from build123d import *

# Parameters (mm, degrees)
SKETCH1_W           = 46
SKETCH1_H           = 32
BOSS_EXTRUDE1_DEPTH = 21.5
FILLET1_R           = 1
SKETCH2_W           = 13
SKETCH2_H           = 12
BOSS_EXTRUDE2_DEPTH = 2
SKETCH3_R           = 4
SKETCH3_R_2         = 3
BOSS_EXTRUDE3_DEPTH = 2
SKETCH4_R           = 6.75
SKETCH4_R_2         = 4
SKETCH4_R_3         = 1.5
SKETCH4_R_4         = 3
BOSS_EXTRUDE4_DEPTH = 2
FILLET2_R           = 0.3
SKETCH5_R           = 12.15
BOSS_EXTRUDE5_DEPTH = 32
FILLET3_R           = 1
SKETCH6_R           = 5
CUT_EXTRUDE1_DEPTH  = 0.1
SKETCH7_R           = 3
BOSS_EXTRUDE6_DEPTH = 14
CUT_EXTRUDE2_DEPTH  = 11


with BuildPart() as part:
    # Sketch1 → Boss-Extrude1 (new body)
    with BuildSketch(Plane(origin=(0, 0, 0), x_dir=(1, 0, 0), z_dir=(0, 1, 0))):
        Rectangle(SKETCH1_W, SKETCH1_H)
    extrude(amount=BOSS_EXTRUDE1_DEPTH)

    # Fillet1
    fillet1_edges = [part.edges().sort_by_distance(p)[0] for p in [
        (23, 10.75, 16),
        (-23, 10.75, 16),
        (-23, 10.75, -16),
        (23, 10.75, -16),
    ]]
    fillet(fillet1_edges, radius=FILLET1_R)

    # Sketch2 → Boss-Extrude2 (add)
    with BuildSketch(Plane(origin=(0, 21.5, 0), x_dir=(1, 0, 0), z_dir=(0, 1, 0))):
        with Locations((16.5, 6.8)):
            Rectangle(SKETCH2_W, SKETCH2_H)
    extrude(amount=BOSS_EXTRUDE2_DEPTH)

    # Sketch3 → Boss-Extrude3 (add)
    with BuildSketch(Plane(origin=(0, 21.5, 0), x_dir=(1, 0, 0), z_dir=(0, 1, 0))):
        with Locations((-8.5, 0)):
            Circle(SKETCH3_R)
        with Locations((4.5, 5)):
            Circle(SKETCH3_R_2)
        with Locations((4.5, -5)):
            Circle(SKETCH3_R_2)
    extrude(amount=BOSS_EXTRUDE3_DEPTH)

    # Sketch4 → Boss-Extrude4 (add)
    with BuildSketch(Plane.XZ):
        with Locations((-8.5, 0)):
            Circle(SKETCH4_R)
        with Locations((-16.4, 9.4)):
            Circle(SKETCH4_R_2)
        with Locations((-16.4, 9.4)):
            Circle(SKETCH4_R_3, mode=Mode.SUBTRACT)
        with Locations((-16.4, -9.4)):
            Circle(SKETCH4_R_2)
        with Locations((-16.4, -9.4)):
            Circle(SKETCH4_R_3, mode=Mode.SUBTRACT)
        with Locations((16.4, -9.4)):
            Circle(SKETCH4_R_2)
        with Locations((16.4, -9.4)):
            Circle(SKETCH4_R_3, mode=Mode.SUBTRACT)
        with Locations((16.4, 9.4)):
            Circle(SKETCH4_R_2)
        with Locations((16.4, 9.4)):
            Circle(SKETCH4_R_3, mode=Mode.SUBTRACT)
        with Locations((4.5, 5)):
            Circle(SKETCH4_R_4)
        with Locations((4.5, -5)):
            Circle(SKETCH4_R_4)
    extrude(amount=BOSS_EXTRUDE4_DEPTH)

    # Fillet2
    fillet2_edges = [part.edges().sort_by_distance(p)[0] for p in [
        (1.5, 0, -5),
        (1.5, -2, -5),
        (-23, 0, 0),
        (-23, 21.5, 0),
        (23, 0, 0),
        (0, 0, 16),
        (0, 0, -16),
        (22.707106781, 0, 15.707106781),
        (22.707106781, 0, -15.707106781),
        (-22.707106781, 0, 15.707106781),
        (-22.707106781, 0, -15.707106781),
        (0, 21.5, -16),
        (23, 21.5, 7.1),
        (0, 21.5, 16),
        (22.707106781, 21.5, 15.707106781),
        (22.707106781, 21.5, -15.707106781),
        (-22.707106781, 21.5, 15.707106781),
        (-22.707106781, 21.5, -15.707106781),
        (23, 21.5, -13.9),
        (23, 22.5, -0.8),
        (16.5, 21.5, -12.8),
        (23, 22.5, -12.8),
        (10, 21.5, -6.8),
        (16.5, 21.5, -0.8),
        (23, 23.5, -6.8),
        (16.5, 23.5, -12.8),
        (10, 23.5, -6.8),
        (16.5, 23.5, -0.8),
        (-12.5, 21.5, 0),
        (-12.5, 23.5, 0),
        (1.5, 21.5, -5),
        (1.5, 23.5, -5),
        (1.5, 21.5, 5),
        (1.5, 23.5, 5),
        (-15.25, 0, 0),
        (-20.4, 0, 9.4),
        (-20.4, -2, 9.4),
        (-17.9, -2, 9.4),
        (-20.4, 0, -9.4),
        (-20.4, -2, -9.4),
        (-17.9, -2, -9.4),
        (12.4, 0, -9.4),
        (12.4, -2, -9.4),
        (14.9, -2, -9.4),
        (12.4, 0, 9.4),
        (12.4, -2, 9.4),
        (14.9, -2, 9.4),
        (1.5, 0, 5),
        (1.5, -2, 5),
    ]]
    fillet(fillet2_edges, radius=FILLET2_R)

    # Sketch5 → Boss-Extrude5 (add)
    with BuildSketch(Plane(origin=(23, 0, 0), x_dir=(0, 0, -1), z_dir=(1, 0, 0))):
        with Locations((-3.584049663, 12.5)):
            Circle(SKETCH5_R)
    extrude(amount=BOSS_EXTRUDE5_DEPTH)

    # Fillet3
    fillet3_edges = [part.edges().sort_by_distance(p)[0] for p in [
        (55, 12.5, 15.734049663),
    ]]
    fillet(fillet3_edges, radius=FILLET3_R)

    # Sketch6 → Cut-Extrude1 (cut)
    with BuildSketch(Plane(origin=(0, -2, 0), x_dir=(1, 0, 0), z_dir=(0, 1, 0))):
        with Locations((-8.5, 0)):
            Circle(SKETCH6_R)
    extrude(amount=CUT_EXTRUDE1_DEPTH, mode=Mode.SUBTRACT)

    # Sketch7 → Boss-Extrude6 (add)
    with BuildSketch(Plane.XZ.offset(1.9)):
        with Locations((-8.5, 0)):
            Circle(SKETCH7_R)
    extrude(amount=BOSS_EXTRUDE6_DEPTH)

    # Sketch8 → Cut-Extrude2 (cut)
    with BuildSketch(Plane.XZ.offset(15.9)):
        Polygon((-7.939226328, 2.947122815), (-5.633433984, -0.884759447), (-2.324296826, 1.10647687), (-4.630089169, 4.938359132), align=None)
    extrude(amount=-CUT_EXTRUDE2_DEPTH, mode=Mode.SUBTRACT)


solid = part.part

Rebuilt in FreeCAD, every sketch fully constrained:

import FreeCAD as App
import Part
import Sketcher
from FreeCAD import Vector


def edges_at(feature, points):
    """Names of the edges that pass closest to the given points."""
    edges = feature.Shape.Edges
    near = lambda p: min(range(len(edges)), key=lambda i: edges[i].distToShape(Part.Vertex(*p))[0])
    return sorted({f"Edge{near(p) + 1}" for p in points})

doc = App.newDocument("Part")
params = doc.addObject("Spreadsheet::Sheet", "Params")
for row, (alias, value) in enumerate([
    ("sketch1_width", "46 mm"),
    ("sketch1_height", "32 mm"),
    ("pad1_length", "21.5 mm"),
    ("fillet_radius", "1 mm"),
    ("sketch2_width", "13 mm"),
    ("sketch2_height", "12 mm"),
    ("pad2_length", "2 mm"),
    ("sketch3_diameter", "8 mm"),
    ("sketch3_diameter2", "6 mm"),
    ("pad3_length", "2 mm"),
    ("sketch4_diameter", "8 mm"),
    ("sketch4_diameter2", "3 mm"),
    ("sketch4_diameter3", "6 mm"),
    ("sketch4_diameter4", "13.5 mm"),
    ("pad4_length", "2 mm"),
    ("fillet2_radius", "0.3 mm"),
    ("sketch5_diameter", "24.3 mm"),
    ("pad5_length", "32 mm"),
    ("fillet3_radius", "1 mm"),
    ("sketch6_diameter", "10 mm"),
    ("pocket1_length", "0.1 mm"),
    ("sketch7_diameter", "6 mm"),
    ("pad6_length", "14 mm"),
    ("pocket2_length", "11 mm"),
], start=1):
    params.set(f"A{row}", alias)
    params.set(f"B{row}", "=" + value)
    params.setAlias(f"B{row}", alias)

body = doc.addObject("PartDesign::Body", "Body")

sketch1 = body.newObject("Sketcher::SketchObject", "Sketch")
sketch1.AttachmentSupport = (doc.getObject("XZ_Plane"), [""])
sketch1.MapMode = "FlatFace"
sketch1.addGeometry([
    Part.LineSegment(Vector(-23, -16, 0), Vector(-23, 16, 0)),
    Part.LineSegment(Vector(-23, 16, 0), Vector(23, 16, 0)),
    Part.LineSegment(Vector(23, 16, 0), Vector(23, -16, 0)),
    Part.LineSegment(Vector(23, -16, 0), Vector(-23, -16, 0)),
], False)
sketch1.addConstraint([
    Sketcher.Constraint("Coincident", 0, 2, 1, 1),
    Sketcher.Constraint("Coincident", 1, 2, 2, 1),
    Sketcher.Constraint("Coincident", 2, 2, 3, 1),
    Sketcher.Constraint("Coincident", 3, 2, 0, 1),
    Sketcher.Constraint("Vertical", 0),
    Sketcher.Constraint("Horizontal", 1),
    Sketcher.Constraint("Vertical", 2),
    Sketcher.Constraint("Horizontal", 3),
    Sketcher.Constraint("Symmetric", 0, 2, 2, 2, -1, 1),
    Sketcher.Constraint("DistanceX", 1, 1, 1, 2, 46.0),
    Sketcher.Constraint("DistanceY", 0, 1, 0, 2, 32.0),
])
sketch1.setExpression("Constraints[9]", "Params.sketch1_width")
sketch1.setExpression("Constraints[10]", "Params.sketch1_height")
pad1 = body.newObject("PartDesign::Pad", "Pad")
pad1.Profile = sketch1
pad1.setExpression("Length", "Params.pad1_length")
pad1.Reversed = True
doc.recompute()

fillet = body.newObject("PartDesign::Fillet", "Fillet")
fillet.Base = (pad1, edges_at(pad1, [
    (23, 10.75, 16),
    (-23, 10.75, 16),
    (-23, 10.75, -16),
    (23, 10.75, -16),
]))
fillet.setExpression("Radius", "Params.fillet_radius")

sketch2 = body.newObject("Sketcher::SketchObject", "Sketch001")
sketch2.AttachmentSupport = (doc.getObject("XZ_Plane"), [""])
sketch2.MapMode = "FlatFace"
sketch2.AttachmentOffset = App.Placement(Vector(0, 0, -21.5), App.Rotation())
sketch2.addGeometry([
    Part.LineSegment(Vector(10, -12.8, 0), Vector(10, -0.8, 0)),
    Part.LineSegment(Vector(10, -0.8, 0), Vector(23, -0.8, 0)),
    Part.LineSegment(Vector(23, -0.8, 0), Vector(23, -12.8, 0)),
    Part.LineSegment(Vector(23, -12.8, 0), Vector(10, -12.8, 0)),
], False)
sketch2.addConstraint([
    Sketcher.Constraint("Coincident", 0, 2, 1, 1),
    Sketcher.Constraint("Coincident", 1, 2, 2, 1),
    Sketcher.Constraint("Coincident", 2, 2, 3, 1),
    Sketcher.Constraint("Coincident", 3, 2, 0, 1),
    Sketcher.Constraint("Vertical", 0),
    Sketcher.Constraint("Horizontal", 1),
    Sketcher.Constraint("Vertical", 2),
    Sketcher.Constraint("Horizontal", 3),
    Sketcher.Constraint("DistanceX", 1, 1, 1, 2, 13.0),
    Sketcher.Constraint("DistanceY", 0, 1, 0, 2, 12.0),
    Sketcher.Constraint("DistanceX", -1, 1, 0, 2, 10.0),
    Sketcher.Constraint("DistanceY", 0, 2, -1, 1, 0.8),
])
sketch2.setExpression("Constraints[8]", "Params.sketch2_width")
sketch2.setExpression("Constraints[9]", "Params.sketch2_height")
pad2 = body.newObject("PartDesign::Pad", "Pad001")
pad2.Profile = sketch2
pad2.setExpression("Length", "Params.pad2_length")
pad2.Reversed = True

sketch3 = body.newObject("Sketcher::SketchObject", "Sketch002")
sketch3.AttachmentSupport = (doc.getObject("XZ_Plane"), [""])
sketch3.MapMode = "FlatFace"
sketch3.AttachmentOffset = App.Placement(Vector(0, 0, -21.5), App.Rotation())
sketch3.addGeometry([
    Part.Circle(Vector(-8.5, 0, 0), Vector(0, 0, 1), 4),
    Part.Circle(Vector(4.5, -5, 0), Vector(0, 0, 1), 3),
    Part.Circle(Vector(4.5, 5, 0), Vector(0, 0, 1), 3),
], False)
sketch3.addConstraint([
    Sketcher.Constraint("Equal", 1, 2),
    Sketcher.Constraint("Symmetric", 1, 3, 2, 3, -1),
    Sketcher.Constraint("PointOnObject", 0, 3, -1),
    Sketcher.Constraint("Diameter", 0, 8.0),
    Sketcher.Constraint("Diameter", 1, 6.0),
    Sketcher.Constraint("DistanceY", 1, 3, -1, 1, 5.0),
    Sketcher.Constraint("DistanceX", 0, 3, 1, 3, 13.0),
    Sketcher.Constraint("DistanceX", 0, 3, -1, 1, 8.5),
])
sketch3.setExpression("Constraints[3]", "Params.sketch3_diameter")
sketch3.setExpression("Constraints[4]", "Params.sketch3_diameter2")
pad3 = body.newObject("PartDesign::Pad", "Pad002")
pad3.Profile = sketch3
pad3.setExpression("Length", "Params.pad3_length")
pad3.Reversed = True

sketch4 = body.newObject("Sketcher::SketchObject", "Sketch003")
sketch4.AttachmentSupport = (doc.getObject("XZ_Plane"), [""])
sketch4.MapMode = "FlatFace"
sketch4.addGeometry([
    Part.Circle(Vector(-8.5, 0, 0), Vector(0, 0, 1), 6.75),
    Part.Circle(Vector(-16.4, 9.4, 0), Vector(0, 0, 1), 4),
    Part.Circle(Vector(-16.4, 9.4, 0), Vector(0, 0, 1), 1.5),
    Part.Circle(Vector(-16.4, -9.4, 0), Vector(0, 0, 1), 4),
    Part.Circle(Vector(-16.4, -9.4, 0), Vector(0, 0, 1), 1.5),
    Part.Circle(Vector(16.4, -9.4, 0), Vector(0, 0, 1), 4),
    Part.Circle(Vector(16.4, -9.4, 0), Vector(0, 0, 1), 1.5),
    Part.Circle(Vector(16.4, 9.4, 0), Vector(0, 0, 1), 4),
    Part.Circle(Vector(16.4, 9.4, 0), Vector(0, 0, 1), 1.5),
    Part.Circle(Vector(4.5, 5, 0), Vector(0, 0, 1), 3),
    Part.Circle(Vector(4.5, -5, 0), Vector(0, 0, 1), 3),
], False)
sketch4.addConstraint([
    Sketcher.Constraint("Coincident", 2, 3, 1, 3),
    Sketcher.Constraint("Coincident", 4, 3, 3, 3),
    Sketcher.Constraint("Coincident", 6, 3, 5, 3),
    Sketcher.Constraint("Coincident", 8, 3, 7, 3),
    Sketcher.Constraint("Equal", 1, 3),
    Sketcher.Constraint("Equal", 2, 4),
    Sketcher.Constraint("Equal", 3, 5),
    Sketcher.Constraint("Equal", 4, 6),
    Sketcher.Constraint("Equal", 5, 7),
    Sketcher.Constraint("Equal", 6, 8),
    Sketcher.Constraint("Equal", 9, 10),
    Sketcher.Constraint("Symmetric", 1, 3, 5, 3, -1, 1),
    Sketcher.Constraint("Symmetric", 3, 3, 7, 3, -1, 1),
    Sketcher.Constraint("Symmetric", 3, 3, 5, 3, -2),
    Sketcher.Constraint("Symmetric", 9, 3, 10, 3, -1),
    Sketcher.Constraint("PointOnObject", 0, 3, -1),
    Sketcher.Constraint("Diameter", 1, 8.0),
    Sketcher.Constraint("Diameter", 2, 3.0),
    Sketcher.Constraint("Diameter", 9, 6.0),
    Sketcher.Constraint("Diameter", 0, 13.5),
    Sketcher.Constraint("DistanceY", -1, 1, 9, 3, 5.0),
    Sketcher.Constraint("DistanceX", 0, 3, 9, 3, 13.0),
    Sketcher.Constraint("DistanceX", 0, 3, -1, 1, 8.5),
    Sketcher.Constraint("DistanceX", 1, 3, -1, 1, 16.4),
    Sketcher.Constraint("DistanceY", -1, 1, 1, 3, 9.4),
])
sketch4.setExpression("Constraints[16]", "Params.sketch4_diameter")
sketch4.setExpression("Constraints[17]", "Params.sketch4_diameter2")
sketch4.setExpression("Constraints[18]", "Params.sketch4_diameter3")
sketch4.setExpression("Constraints[19]", "Params.sketch4_diameter4")
pad4 = body.newObject("PartDesign::Pad", "Pad003")
pad4.Profile = sketch4
pad4.setExpression("Length", "Params.pad4_length")
doc.recompute()

fillet2 = body.newObject("PartDesign::Fillet", "Fillet001")
fillet2.Base = (pad4, edges_at(pad4, [
    (1.5, 0, -5),
    (1.5, -2, -5),
    (-23, 0, 0),
    (-23, 21.5, 0),
    (23, 0, 0),
    (0, 0, 16),
    (0, 0, -16),
    (22.707, 0, 15.707),
    (22.707, 0, -15.707),
    (-22.707, 0, 15.707),
    (-22.707, 0, -15.707),
    (0, 21.5, -16),
    (23, 21.5, 7.1),
    (0, 21.5, 16),
    (22.707, 21.5, 15.707),
    (22.707, 21.5, -15.707),
    (-22.707, 21.5, 15.707),
    (-22.707, 21.5, -15.707),
    (23, 21.5, -13.9),
    (23, 22.5, -0.8),
    (16.5, 21.5, -12.8),
    (23, 22.5, -12.8),
    (10, 21.5, -6.8),
    (16.5, 21.5, -0.8),
    (23, 23.5, -6.8),
    (16.5, 23.5, -12.8),
    (10, 23.5, -6.8),
    (16.5, 23.5, -0.8),
    (-12.5, 21.5, 0),
    (-12.5, 23.5, 0),
    (1.5, 21.5, -5),
    (1.5, 23.5, -5),
    (1.5, 21.5, 5),
    (1.5, 23.5, 5),
    (-15.25, 0, 0),
    (-20.4, 0, 9.4),
    (-20.4, -2, 9.4),
    (-17.9, -2, 9.4),
    (-20.4, 0, -9.4),
    (-20.4, -2, -9.4),
    (-17.9, -2, -9.4),
    (12.4, 0, -9.4),
    (12.4, -2, -9.4),
    (14.9, -2, -9.4),
    (12.4, 0, 9.4),
    (12.4, -2, 9.4),
    (14.9, -2, 9.4),
    (1.5, 0, 5),
    (1.5, -2, 5),
]))
fillet2.setExpression("Radius", "Params.fillet2_radius")

sketch5 = body.newObject("Sketcher::SketchObject", "Sketch004")
sketch5.AttachmentSupport = (doc.getObject("YZ_Plane"), [""])
sketch5.MapMode = "FlatFace"
sketch5.AttachmentOffset = App.Placement(Vector(0, 0, 23), App.Rotation())
sketch5.addGeometry(Part.Circle(Vector(12.5, 3.58405, 0), Vector(0, 0, 1), 12.15), False)
sketch5.addConstraint([
    Sketcher.Constraint("Diameter", 0, 24.3),
    Sketcher.Constraint("DistanceX", -1, 1, 0, 3, 12.5),
    Sketcher.Constraint("DistanceY", -1, 1, 0, 3, 3.58405),
])
sketch5.setExpression("Constraints[0]", "Params.sketch5_diameter")
pad5 = body.newObject("PartDesign::Pad", "Pad004")
pad5.Profile = sketch5
pad5.setExpression("Length", "Params.pad5_length")
doc.recompute()

fillet3 = body.newObject("PartDesign::Fillet", "Fillet002")
fillet3.Base = (pad5, edges_at(pad5, [(55, 12.5, 15.734)]))
fillet3.setExpression("Radius", "Params.fillet3_radius")

sketch6 = body.newObject("Sketcher::SketchObject", "Sketch005")
sketch6.AttachmentSupport = (doc.getObject("XZ_Plane"), [""])
sketch6.MapMode = "FlatFace"
sketch6.AttachmentOffset = App.Placement(Vector(0, 0, 2), App.Rotation())
sketch6.addGeometry(Part.Circle(Vector(-8.5, 0, 0), Vector(0, 0, 1), 5), False)
sketch6.addConstraint([
    Sketcher.Constraint("PointOnObject", 0, 3, -1),
    Sketcher.Constraint("Diameter", 0, 10.0),
    Sketcher.Constraint("DistanceX", 0, 3, -1, 1, 8.5),
])
sketch6.setExpression("Constraints[1]", "Params.sketch6_diameter")
pocket1 = body.newObject("PartDesign::Pocket", "Pocket")
pocket1.Profile = sketch6
pocket1.setExpression("Length", "Params.pocket1_length")

sketch7 = body.newObject("Sketcher::SketchObject", "Sketch006")
sketch7.AttachmentSupport = (doc.getObject("XZ_Plane"), [""])
sketch7.MapMode = "FlatFace"
sketch7.AttachmentOffset = App.Placement(Vector(0, 0, 1.9), App.Rotation())
sketch7.addGeometry(Part.Circle(Vector(-8.5, 0, 0), Vector(0, 0, 1), 3), False)
sketch7.addConstraint([
    Sketcher.Constraint("PointOnObject", 0, 3, -1),
    Sketcher.Constraint("Diameter", 0, 6.0),
    Sketcher.Constraint("DistanceX", 0, 3, -1, 1, 8.5),
])
sketch7.setExpression("Constraints[1]", "Params.sketch7_diameter")
pad6 = body.newObject("PartDesign::Pad", "Pad005")
pad6.Profile = sketch7
pad6.setExpression("Length", "Params.pad6_length")

sketch8 = body.newObject("Sketcher::SketchObject", "Sketch007")
sketch8.AttachmentSupport = (doc.getObject("XZ_Plane"), [""])
sketch8.MapMode = "FlatFace"
sketch8.AttachmentOffset = App.Placement(Vector(0, 0, 15.9), App.Rotation())
sketch8.addGeometry([
    Part.LineSegment(Vector(-7.939226, 2.947123, 0), Vector(-5.633434, -0.884759, 0)),
    Part.LineSegment(Vector(-5.633434, -0.884759, 0), Vector(-2.324297, 1.106477, 0)),
    Part.LineSegment(Vector(-2.324297, 1.106477, 0), Vector(-4.630089, 4.938359, 0)),
    Part.LineSegment(Vector(-4.630089, 4.938359, 0), Vector(-7.939226, 2.947123, 0)),
], False)
sketch8.addConstraint([
    Sketcher.Constraint("Coincident", 0, 2, 1, 1),
    Sketcher.Constraint("Coincident", 1, 2, 2, 1),
    Sketcher.Constraint("Coincident", 2, 2, 3, 1),
    Sketcher.Constraint("Coincident", 3, 2, 0, 1),
    Sketcher.Constraint("DistanceY", 0, 2, -1, 1, 0.884759),
    Sketcher.Constraint("DistanceX", 2, 2, -1, 1, 4.630089),
    Sketcher.Constraint("DistanceY", -1, 1, 2, 2, 4.938359),
    Sketcher.Constraint("DistanceX", 3, 2, 1, 2, 5.61493),
    Sketcher.Constraint("Distance", 0, 4.472136),
    Sketcher.Constraint("Distance", 1, 3.862047),
    Sketcher.Constraint("Distance", 2, 4.472136),
    Sketcher.Constraint("Distance", 3, 3.862047),
])
pocket2 = body.newObject("PartDesign::Pocket", "Pocket001")
pocket2.Profile = sketch8
pocket2.setExpression("Length", "Params.pocket2_length")

doc.recompute()
